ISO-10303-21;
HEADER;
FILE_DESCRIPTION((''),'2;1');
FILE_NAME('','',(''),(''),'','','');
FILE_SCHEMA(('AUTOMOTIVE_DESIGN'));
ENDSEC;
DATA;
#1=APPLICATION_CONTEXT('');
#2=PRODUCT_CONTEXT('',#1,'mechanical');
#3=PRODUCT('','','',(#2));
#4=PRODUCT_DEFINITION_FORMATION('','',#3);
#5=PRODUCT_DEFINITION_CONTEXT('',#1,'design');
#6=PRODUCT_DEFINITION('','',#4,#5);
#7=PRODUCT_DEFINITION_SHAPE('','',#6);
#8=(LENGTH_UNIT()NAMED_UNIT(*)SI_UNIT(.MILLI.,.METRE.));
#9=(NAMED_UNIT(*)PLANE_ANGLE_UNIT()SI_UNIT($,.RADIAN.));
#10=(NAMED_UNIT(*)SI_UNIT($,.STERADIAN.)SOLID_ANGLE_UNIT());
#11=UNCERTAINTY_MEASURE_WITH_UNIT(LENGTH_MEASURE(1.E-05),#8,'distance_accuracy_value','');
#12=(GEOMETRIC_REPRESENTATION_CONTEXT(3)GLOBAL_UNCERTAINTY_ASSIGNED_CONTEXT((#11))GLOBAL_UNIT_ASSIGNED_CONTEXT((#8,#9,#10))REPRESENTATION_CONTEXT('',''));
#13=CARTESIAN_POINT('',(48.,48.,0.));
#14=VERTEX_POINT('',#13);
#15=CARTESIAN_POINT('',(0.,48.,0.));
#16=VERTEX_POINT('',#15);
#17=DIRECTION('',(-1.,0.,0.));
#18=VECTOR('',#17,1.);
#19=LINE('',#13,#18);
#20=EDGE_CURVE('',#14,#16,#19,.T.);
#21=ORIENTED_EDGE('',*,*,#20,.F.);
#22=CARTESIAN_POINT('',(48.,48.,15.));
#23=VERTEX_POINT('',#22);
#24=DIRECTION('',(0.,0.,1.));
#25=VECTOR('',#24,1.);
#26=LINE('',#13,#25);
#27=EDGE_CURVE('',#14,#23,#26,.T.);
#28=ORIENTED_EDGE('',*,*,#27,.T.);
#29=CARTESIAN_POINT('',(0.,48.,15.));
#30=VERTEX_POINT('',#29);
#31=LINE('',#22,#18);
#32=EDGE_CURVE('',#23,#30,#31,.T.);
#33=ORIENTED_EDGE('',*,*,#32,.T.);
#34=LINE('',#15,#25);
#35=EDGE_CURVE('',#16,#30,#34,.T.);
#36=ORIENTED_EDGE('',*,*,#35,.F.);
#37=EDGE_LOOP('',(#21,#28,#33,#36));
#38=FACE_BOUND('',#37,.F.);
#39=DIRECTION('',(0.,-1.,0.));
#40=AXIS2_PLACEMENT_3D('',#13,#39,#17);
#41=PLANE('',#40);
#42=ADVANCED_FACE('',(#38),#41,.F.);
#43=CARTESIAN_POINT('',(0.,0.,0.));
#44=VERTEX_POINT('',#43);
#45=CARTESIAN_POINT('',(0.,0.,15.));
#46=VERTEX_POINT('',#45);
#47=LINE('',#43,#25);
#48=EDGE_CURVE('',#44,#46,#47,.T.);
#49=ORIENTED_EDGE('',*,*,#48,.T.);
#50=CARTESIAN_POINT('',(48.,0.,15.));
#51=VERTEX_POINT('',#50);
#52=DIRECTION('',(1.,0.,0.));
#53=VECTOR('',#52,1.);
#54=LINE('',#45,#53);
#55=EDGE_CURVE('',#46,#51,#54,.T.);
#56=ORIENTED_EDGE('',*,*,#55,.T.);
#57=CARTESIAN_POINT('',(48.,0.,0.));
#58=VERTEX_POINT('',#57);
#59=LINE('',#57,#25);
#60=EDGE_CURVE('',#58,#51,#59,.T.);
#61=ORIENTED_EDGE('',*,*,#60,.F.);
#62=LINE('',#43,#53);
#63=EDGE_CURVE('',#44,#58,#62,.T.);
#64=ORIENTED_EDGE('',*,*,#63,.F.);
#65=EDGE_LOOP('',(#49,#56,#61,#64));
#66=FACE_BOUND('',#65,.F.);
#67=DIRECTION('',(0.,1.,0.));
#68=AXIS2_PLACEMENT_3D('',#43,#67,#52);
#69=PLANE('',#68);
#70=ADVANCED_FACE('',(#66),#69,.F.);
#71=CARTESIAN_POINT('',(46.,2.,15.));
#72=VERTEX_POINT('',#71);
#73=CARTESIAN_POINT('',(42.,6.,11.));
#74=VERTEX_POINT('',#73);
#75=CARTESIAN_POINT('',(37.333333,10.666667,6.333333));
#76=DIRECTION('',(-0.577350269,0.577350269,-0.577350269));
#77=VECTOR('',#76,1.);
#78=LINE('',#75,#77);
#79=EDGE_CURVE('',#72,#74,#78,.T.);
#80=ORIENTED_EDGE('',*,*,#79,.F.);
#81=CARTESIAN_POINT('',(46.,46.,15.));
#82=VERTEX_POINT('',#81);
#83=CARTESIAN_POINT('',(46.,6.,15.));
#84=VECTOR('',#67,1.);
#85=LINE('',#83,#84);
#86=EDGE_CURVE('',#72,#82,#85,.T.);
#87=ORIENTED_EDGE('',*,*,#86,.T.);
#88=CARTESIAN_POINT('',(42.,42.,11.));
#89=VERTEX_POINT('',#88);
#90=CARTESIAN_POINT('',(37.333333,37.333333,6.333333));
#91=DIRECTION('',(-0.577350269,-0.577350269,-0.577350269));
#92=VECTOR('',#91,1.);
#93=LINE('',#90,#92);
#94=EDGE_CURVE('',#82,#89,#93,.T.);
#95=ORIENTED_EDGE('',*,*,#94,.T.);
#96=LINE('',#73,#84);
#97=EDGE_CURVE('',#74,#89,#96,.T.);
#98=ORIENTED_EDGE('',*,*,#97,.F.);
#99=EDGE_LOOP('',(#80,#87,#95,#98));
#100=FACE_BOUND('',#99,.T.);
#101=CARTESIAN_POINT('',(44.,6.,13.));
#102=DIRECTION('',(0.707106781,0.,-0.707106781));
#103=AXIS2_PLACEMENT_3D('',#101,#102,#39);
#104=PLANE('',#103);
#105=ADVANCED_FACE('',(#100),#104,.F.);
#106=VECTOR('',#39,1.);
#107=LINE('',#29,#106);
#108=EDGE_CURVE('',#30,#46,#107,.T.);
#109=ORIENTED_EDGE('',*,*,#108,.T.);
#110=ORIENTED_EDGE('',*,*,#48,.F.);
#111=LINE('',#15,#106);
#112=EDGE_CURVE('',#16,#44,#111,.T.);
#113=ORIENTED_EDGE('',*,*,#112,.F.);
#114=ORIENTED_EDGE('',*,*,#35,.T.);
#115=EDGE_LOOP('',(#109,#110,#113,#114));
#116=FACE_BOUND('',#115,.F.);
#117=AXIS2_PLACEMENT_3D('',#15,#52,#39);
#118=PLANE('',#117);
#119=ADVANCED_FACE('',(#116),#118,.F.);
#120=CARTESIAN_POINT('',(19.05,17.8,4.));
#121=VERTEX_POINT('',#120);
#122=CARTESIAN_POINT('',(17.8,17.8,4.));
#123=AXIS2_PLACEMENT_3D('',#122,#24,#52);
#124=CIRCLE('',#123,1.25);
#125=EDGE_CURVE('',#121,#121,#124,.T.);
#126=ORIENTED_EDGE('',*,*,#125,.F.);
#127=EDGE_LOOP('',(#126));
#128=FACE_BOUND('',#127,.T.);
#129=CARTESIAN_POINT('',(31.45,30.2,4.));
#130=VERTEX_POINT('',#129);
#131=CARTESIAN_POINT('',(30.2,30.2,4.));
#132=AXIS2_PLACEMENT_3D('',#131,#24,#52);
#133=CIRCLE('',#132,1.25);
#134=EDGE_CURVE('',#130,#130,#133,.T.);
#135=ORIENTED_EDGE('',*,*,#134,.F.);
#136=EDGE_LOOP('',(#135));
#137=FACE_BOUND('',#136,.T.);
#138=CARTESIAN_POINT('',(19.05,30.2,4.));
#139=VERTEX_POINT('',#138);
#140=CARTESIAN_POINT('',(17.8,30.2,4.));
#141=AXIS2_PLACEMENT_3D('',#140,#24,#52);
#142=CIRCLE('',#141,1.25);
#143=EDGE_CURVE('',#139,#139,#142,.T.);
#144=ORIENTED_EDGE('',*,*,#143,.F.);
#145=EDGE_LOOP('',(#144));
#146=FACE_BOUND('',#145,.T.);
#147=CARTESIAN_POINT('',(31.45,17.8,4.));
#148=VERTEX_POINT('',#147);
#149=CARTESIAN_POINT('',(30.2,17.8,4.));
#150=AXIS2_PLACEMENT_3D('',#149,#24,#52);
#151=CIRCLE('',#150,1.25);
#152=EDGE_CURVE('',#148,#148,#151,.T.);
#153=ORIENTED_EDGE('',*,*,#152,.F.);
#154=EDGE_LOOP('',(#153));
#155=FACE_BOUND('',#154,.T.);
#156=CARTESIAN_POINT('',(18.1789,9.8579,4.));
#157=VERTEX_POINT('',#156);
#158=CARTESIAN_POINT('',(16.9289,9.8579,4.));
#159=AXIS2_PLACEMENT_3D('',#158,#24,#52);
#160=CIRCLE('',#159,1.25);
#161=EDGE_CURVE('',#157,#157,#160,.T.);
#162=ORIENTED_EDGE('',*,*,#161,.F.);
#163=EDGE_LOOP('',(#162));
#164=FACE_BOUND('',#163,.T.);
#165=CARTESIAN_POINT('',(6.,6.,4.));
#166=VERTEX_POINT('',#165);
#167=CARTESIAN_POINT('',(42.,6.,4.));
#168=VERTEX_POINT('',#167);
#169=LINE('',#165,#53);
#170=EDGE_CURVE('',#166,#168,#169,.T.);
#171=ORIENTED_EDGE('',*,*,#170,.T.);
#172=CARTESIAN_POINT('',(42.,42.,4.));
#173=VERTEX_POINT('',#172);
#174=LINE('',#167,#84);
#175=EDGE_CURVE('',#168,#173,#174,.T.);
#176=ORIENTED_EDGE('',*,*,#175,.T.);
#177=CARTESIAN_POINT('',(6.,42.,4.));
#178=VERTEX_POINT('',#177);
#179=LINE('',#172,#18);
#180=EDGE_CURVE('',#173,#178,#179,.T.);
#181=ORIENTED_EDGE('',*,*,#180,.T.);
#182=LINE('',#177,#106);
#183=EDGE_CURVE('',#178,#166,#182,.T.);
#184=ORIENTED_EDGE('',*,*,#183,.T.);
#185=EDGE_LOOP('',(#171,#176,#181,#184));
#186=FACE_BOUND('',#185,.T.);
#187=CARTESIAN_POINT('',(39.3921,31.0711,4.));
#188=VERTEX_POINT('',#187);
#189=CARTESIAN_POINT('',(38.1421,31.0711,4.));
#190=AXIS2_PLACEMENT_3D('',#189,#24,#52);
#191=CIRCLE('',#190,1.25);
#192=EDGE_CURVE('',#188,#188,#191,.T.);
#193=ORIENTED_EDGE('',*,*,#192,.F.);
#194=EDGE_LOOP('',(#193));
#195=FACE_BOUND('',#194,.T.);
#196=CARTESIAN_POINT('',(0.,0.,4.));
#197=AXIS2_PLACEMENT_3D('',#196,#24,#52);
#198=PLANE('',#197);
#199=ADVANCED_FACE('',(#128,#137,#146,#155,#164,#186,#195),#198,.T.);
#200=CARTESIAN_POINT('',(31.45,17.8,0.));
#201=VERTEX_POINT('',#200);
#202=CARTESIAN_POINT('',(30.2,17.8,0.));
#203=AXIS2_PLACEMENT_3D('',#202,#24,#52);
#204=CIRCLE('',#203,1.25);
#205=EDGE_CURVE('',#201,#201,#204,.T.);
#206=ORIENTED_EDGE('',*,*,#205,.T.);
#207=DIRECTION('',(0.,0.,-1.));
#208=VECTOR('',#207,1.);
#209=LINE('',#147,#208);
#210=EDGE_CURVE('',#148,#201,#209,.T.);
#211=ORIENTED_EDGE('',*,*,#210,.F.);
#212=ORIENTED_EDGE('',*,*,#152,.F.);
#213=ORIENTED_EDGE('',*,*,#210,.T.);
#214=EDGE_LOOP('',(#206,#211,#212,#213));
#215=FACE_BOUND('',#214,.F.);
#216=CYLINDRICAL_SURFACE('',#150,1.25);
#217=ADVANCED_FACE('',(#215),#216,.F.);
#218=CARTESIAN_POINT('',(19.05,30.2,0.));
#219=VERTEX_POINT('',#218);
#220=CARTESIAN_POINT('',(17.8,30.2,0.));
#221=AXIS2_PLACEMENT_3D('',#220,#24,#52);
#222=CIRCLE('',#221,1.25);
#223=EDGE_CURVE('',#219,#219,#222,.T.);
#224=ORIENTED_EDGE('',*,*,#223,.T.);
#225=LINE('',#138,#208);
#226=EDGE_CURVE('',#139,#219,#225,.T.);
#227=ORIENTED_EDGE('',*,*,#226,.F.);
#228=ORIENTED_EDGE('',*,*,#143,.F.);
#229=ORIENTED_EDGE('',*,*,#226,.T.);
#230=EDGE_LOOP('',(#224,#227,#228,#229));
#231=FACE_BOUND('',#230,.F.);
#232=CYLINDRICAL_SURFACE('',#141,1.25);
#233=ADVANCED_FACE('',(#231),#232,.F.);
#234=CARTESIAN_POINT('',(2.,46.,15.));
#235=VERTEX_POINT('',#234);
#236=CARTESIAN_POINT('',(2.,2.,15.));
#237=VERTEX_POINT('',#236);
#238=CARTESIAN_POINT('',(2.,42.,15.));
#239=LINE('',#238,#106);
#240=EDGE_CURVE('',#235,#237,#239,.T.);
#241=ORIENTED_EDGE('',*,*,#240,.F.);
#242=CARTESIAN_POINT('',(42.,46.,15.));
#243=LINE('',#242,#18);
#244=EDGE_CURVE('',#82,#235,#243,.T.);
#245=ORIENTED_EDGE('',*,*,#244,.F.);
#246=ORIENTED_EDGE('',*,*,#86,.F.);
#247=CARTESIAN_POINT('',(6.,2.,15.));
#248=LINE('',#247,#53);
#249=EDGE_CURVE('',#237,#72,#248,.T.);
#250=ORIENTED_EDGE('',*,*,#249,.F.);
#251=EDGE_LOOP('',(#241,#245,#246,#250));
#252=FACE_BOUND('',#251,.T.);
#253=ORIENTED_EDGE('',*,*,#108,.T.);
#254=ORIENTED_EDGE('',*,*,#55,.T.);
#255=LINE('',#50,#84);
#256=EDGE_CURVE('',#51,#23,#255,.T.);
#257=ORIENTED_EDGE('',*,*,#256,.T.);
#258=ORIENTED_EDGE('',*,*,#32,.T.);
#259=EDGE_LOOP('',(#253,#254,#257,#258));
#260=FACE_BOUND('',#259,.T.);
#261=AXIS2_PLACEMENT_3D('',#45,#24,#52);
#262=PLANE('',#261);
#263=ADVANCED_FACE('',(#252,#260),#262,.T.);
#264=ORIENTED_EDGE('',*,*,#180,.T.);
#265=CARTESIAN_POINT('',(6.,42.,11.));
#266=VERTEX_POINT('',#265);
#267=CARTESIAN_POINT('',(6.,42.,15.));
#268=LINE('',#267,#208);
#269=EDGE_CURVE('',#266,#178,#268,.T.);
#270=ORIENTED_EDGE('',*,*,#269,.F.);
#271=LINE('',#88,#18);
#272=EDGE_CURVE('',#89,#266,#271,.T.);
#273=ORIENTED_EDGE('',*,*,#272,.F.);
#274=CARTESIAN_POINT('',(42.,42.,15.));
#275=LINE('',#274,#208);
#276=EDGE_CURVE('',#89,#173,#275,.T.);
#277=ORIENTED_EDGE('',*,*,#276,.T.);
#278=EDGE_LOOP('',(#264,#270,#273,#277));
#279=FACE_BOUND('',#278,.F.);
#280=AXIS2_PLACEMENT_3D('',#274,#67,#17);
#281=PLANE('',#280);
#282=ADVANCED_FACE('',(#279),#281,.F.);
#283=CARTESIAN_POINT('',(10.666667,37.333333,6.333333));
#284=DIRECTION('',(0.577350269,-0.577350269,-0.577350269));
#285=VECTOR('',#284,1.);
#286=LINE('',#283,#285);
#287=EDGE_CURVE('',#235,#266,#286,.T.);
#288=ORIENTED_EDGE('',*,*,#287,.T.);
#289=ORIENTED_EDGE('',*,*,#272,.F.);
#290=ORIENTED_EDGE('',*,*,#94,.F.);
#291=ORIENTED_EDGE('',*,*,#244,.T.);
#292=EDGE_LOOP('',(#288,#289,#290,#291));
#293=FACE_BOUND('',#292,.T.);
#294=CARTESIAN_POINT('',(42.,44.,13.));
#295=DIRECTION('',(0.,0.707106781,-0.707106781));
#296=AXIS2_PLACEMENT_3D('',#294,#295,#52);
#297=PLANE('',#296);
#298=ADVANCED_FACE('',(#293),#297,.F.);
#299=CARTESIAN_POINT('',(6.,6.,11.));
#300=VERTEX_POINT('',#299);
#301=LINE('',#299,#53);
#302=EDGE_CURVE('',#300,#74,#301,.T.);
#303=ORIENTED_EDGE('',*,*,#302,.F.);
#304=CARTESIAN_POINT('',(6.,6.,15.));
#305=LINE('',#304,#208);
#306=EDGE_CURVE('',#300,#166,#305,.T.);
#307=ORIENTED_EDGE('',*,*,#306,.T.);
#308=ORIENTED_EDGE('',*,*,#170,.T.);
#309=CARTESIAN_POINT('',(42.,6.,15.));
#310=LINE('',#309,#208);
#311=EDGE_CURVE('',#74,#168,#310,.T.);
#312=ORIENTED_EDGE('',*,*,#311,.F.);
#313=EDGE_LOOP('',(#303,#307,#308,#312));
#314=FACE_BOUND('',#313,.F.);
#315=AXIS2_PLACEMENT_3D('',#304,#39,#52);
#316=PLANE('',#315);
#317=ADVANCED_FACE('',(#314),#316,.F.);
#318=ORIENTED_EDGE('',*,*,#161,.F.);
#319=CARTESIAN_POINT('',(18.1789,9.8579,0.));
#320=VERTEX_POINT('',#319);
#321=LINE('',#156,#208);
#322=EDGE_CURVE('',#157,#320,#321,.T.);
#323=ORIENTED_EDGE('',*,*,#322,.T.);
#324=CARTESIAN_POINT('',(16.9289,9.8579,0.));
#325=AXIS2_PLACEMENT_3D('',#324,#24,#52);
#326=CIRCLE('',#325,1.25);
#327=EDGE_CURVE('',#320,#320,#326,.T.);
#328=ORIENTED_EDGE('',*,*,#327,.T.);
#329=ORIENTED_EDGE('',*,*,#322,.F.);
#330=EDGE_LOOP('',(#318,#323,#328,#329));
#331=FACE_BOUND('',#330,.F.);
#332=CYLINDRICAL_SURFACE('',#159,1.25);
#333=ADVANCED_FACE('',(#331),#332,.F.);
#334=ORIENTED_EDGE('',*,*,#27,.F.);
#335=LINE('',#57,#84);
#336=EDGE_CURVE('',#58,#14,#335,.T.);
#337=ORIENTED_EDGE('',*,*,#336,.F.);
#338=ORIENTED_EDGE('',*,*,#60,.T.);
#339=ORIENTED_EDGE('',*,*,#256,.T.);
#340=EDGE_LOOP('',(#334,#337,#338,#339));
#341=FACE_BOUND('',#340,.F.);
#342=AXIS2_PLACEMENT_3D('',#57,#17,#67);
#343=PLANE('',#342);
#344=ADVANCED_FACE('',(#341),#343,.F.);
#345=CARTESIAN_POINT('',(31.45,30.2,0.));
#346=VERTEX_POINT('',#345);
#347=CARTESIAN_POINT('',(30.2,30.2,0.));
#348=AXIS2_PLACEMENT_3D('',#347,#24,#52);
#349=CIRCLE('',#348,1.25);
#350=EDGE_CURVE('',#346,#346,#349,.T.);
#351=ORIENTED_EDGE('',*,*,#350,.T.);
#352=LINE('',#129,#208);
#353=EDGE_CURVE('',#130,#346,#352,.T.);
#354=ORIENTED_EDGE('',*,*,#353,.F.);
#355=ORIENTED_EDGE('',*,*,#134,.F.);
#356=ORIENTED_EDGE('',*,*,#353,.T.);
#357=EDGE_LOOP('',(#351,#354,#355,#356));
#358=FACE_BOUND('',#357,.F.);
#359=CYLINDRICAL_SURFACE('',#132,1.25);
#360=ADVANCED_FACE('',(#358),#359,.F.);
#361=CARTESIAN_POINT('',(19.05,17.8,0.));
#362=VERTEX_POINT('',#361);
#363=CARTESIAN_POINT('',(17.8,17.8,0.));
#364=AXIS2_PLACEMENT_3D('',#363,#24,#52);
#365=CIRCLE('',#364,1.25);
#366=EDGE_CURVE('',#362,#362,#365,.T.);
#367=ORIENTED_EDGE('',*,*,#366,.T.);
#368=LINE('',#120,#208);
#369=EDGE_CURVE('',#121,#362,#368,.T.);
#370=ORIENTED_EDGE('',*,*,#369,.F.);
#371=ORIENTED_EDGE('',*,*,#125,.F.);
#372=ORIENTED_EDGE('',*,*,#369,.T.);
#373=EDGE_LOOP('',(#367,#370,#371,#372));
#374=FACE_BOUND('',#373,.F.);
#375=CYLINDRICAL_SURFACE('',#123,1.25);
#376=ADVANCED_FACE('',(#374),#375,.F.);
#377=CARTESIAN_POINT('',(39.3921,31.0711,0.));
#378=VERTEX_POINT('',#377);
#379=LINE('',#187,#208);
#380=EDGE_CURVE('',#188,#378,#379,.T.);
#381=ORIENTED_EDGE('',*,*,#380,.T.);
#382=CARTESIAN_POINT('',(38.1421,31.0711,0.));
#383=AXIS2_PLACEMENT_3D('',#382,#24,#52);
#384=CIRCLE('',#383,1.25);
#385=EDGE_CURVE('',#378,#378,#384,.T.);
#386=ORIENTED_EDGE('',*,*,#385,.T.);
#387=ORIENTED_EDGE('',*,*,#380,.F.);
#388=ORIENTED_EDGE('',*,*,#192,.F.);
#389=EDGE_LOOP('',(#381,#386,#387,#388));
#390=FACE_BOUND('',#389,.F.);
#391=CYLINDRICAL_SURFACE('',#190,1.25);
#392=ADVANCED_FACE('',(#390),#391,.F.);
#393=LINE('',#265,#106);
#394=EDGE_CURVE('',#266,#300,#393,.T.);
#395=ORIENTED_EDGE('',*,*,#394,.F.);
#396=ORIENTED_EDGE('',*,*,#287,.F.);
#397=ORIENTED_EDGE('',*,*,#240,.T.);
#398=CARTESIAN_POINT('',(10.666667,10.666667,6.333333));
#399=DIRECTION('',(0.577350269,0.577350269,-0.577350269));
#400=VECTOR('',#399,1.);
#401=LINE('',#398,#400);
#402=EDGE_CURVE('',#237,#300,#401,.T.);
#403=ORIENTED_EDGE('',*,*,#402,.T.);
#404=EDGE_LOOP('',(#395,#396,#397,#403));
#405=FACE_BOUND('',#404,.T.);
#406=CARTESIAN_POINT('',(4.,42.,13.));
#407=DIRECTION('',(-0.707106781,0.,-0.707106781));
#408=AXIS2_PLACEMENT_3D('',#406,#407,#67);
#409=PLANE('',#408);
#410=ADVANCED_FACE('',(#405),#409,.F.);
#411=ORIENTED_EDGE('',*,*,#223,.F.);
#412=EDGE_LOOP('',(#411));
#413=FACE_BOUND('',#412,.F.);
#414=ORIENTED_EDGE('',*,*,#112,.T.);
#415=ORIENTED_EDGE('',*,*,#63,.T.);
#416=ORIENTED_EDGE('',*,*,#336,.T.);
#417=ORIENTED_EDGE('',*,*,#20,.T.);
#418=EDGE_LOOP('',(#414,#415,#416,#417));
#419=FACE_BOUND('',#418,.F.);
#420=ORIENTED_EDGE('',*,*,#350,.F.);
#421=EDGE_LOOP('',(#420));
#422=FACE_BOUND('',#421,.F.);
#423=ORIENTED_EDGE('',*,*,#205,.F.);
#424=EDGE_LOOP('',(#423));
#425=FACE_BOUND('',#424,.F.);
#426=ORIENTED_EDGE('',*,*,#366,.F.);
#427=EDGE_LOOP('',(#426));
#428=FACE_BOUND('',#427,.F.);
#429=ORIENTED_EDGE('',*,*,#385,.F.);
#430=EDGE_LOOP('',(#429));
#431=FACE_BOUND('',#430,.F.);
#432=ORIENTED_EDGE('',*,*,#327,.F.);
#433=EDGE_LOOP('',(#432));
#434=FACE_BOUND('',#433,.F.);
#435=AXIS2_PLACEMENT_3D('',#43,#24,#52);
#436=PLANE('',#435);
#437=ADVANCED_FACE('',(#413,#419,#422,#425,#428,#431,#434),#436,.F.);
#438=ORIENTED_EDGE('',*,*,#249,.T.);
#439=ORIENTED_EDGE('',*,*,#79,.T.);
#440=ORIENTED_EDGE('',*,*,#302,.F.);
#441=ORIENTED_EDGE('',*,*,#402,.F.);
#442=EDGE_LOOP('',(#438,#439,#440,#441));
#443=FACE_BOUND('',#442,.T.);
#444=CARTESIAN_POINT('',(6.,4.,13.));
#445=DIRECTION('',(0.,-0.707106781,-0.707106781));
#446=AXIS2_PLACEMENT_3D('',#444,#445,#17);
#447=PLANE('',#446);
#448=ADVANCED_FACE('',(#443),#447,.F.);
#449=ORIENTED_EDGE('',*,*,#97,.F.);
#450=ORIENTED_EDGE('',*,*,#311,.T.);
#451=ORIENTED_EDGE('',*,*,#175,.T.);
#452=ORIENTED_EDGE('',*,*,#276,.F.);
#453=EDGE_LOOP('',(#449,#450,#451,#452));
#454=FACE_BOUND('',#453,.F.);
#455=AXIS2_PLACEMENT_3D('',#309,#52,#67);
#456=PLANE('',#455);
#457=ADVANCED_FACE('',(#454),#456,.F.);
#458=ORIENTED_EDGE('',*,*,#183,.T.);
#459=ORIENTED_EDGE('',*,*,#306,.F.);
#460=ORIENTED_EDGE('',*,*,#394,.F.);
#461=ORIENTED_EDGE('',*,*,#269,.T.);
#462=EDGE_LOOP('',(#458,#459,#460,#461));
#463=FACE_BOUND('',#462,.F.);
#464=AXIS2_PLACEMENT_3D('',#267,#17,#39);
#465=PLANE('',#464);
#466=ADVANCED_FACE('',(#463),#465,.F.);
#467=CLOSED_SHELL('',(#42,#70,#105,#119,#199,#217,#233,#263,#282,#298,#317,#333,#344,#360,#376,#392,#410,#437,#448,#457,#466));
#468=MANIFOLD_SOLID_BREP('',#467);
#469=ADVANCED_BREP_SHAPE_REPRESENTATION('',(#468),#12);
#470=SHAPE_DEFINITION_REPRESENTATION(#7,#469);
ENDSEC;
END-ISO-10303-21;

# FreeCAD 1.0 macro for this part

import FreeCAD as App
import Part
import Sketcher
from FreeCAD import Vector
Q = App.Units.Quantity


def edges_at(feature, points):
    """Names of the edges that pass closest to the given points."""
    edges = feature.Shape.Edges
    near = lambda p: min(range(len(edges)), key=lambda i: edges[i].distToShape(Part.Vertex(*p))[0])
    return sorted({f"Edge{near(p) + 1}" for p in points})


def add_polygon(sketch, points):
    """Adds a closed chain of lines whose ends are joined by coincident constraints."""
    first, n = sketch.GeometryCount, len(points)
    for a, b in zip(points, points[1:] + points[:1]):
        sketch.addGeometry(Part.LineSegment(App.Vector(*a, 0), App.Vector(*b, 0)), False)
    for i in range(n):
        sketch.addConstraint(Sketcher.Constraint("Coincident", first + i, 2, first + (i + 1) % n, 1))

doc = App.newDocument("Part")
body = doc.addObject("PartDesign::Body", "Body")

sketch1 = doc.addObject("Sketcher::SketchObject", "Sketch")
body.addObject(sketch1)
sketch1.AttachmentSupport = (doc.XY_Plane, [""])
sketch1.MapMode = "FlatFace"
add_polygon(sketch1, [(0, 48), (0, 0), (48, 0), (48, 48)])
sketch1.addConstraint(Sketcher.Constraint("Vertical", 0))
sketch1.addConstraint(Sketcher.Constraint("Horizontal", 1))
sketch1.addConstraint(Sketcher.Constraint("Vertical", 2))
sketch1.addConstraint(Sketcher.Constraint("Horizontal", 3))
sketch1.addConstraint(Sketcher.Constraint("Coincident", 0, 2, -1, 1))
sketch1.addConstraint(Sketcher.Constraint("Equal", 3, 0))
sketch1.addConstraint(Sketcher.Constraint("DistanceX", 1, 1, 1, 2, Q("48 mm")))
pad1 = doc.addObject("PartDesign::Pad", "Pad")
body.addObject(pad1)
pad1.Profile = sketch1
pad1.Length = 15

sketch2 = doc.addObject("Sketcher::SketchObject", "Sketch001")
body.addObject(sketch2)
sketch2.AttachmentSupport = (doc.XY_Plane, [""])
sketch2.MapMode = "FlatFace"
sketch2.AttachmentOffset = App.Placement(Vector(0, 0, 15), App.Rotation())
add_polygon(sketch2, [(6, 42), (6, 6), (42, 6), (42, 42)])
sketch2.addConstraint(Sketcher.Constraint("Vertical", 0))
sketch2.addConstraint(Sketcher.Constraint("Horizontal", 1))
sketch2.addConstraint(Sketcher.Constraint("Vertical", 2))
sketch2.addConstraint(Sketcher.Constraint("Horizontal", 3))
sketch2.addConstraint(Sketcher.Constraint("Equal", 3, 0))
sketch2.addConstraint(Sketcher.Constraint("DistanceX", 1, 1, 1, 2, Q("36 mm")))
sketch2.addConstraint(Sketcher.Constraint("DistanceX", -1, 1, 0, 2, Q("6 mm")))
sketch2.addConstraint(Sketcher.Constraint("DistanceY", -1, 1, 0, 2, Q("6 mm")))
pocket1 = doc.addObject("PartDesign::Pocket", "Pocket")
body.addObject(pocket1)
pocket1.Profile = sketch2
pocket1.Length = 11
doc.recompute()

chamfer = doc.addObject("PartDesign::Chamfer", "Chamfer")
body.addObject(chamfer)
chamfer.Base = (pocket1, edges_at(pocket1, [
    (42, 24, 15),
    (24, 42, 15),
    (6, 24, 15),
    (24, 6, 15),
]))
chamfer.Size = 4

sketch3 = doc.addObject("Sketcher::SketchObject", "Sketch002")
body.addObject(sketch3)
sketch3.AttachmentSupport = (doc.XY_Plane, [""])
sketch3.MapMode = "FlatFace"
sketch3.AttachmentOffset = App.Placement(Vector(0, 0, 4), App.Rotation())
sketch3.addGeometry(Part.Circle(Vector(38.1421, 31.0711, 0), Vector(0, 0, 1), 1.25), False)
sketch3.addGeometry(Part.Circle(Vector(16.9289, 9.8579, 0), Vector(0, 0, 1), 1.25), False)
sketch3.addGeometry(Part.Circle(Vector(30.2, 30.2, 0), Vector(0, 0, 1), 1.25), False)
sketch3.addGeometry(Part.Circle(Vector(17.8, 30.2, 0), Vector(0, 0, 1), 1.25), False)
sketch3.addGeometry(Part.Circle(Vector(17.8, 17.8, 0), Vector(0, 0, 1), 1.25), False)
sketch3.addGeometry(Part.Circle(Vector(30.2, 17.8, 0), Vector(0, 0, 1), 1.25), False)
sketch3.addConstraint(Sketcher.Constraint("Equal", 0, 1))
sketch3.addConstraint(Sketcher.Constraint("Equal", 1, 2))
sketch3.addConstraint(Sketcher.Constraint("Equal", 2, 3))
sketch3.addConstraint(Sketcher.Constraint("Equal", 3, 4))
sketch3.addConstraint(Sketcher.Constraint("Equal", 4, 5))
sketch3.addConstraint(Sketcher.Constraint("Horizontal", 2, 3, 3, 3))
sketch3.addConstraint(Sketcher.Constraint("Horizontal", 4, 3, 5, 3))
sketch3.addConstraint(Sketcher.Constraint("Vertical", 3, 3, 4, 3))
sketch3.addConstraint(Sketcher.Constraint("Vertical", 2, 3, 5, 3))
sketch3.addConstraint(Sketcher.Constraint("Diameter", 0, Q("2.5 mm")))
sketch3.addConstraint(Sketcher.Constraint("DistanceX", -1, 1, 2, 3, Q("30.2 mm")))
sketch3.addConstraint(Sketcher.Constraint("DistanceY", -1, 1, 2, 3, Q("30.2 mm")))
sketch3.addConstraint(Sketcher.Constraint("DistanceX", -1, 1, 3, 3, Q("17.8 mm")))
sketch3.addConstraint(Sketcher.Constraint("DistanceY", -1, 1, 4, 3, Q("17.8 mm")))
sketch3.addConstraint(Sketcher.Constraint("DistanceX", -1, 1, 0, 3, Q("38.142 mm")))
sketch3.addConstraint(Sketcher.Constraint("DistanceY", -1, 1, 0, 3, Q("31.071 mm")))
sketch3.addConstraint(Sketcher.Constraint("DistanceX", -1, 1, 1, 3, Q("16.929 mm")))
sketch3.addConstraint(Sketcher.Constraint("DistanceY", -1, 1, 1, 3, Q("9.858 mm")))
pocket2 = doc.addObject("PartDesign::Pocket", "Pocket001")
body.addObject(pocket2)
pocket2.Profile = sketch3
pocket2.Length = 5

doc.recompute()
